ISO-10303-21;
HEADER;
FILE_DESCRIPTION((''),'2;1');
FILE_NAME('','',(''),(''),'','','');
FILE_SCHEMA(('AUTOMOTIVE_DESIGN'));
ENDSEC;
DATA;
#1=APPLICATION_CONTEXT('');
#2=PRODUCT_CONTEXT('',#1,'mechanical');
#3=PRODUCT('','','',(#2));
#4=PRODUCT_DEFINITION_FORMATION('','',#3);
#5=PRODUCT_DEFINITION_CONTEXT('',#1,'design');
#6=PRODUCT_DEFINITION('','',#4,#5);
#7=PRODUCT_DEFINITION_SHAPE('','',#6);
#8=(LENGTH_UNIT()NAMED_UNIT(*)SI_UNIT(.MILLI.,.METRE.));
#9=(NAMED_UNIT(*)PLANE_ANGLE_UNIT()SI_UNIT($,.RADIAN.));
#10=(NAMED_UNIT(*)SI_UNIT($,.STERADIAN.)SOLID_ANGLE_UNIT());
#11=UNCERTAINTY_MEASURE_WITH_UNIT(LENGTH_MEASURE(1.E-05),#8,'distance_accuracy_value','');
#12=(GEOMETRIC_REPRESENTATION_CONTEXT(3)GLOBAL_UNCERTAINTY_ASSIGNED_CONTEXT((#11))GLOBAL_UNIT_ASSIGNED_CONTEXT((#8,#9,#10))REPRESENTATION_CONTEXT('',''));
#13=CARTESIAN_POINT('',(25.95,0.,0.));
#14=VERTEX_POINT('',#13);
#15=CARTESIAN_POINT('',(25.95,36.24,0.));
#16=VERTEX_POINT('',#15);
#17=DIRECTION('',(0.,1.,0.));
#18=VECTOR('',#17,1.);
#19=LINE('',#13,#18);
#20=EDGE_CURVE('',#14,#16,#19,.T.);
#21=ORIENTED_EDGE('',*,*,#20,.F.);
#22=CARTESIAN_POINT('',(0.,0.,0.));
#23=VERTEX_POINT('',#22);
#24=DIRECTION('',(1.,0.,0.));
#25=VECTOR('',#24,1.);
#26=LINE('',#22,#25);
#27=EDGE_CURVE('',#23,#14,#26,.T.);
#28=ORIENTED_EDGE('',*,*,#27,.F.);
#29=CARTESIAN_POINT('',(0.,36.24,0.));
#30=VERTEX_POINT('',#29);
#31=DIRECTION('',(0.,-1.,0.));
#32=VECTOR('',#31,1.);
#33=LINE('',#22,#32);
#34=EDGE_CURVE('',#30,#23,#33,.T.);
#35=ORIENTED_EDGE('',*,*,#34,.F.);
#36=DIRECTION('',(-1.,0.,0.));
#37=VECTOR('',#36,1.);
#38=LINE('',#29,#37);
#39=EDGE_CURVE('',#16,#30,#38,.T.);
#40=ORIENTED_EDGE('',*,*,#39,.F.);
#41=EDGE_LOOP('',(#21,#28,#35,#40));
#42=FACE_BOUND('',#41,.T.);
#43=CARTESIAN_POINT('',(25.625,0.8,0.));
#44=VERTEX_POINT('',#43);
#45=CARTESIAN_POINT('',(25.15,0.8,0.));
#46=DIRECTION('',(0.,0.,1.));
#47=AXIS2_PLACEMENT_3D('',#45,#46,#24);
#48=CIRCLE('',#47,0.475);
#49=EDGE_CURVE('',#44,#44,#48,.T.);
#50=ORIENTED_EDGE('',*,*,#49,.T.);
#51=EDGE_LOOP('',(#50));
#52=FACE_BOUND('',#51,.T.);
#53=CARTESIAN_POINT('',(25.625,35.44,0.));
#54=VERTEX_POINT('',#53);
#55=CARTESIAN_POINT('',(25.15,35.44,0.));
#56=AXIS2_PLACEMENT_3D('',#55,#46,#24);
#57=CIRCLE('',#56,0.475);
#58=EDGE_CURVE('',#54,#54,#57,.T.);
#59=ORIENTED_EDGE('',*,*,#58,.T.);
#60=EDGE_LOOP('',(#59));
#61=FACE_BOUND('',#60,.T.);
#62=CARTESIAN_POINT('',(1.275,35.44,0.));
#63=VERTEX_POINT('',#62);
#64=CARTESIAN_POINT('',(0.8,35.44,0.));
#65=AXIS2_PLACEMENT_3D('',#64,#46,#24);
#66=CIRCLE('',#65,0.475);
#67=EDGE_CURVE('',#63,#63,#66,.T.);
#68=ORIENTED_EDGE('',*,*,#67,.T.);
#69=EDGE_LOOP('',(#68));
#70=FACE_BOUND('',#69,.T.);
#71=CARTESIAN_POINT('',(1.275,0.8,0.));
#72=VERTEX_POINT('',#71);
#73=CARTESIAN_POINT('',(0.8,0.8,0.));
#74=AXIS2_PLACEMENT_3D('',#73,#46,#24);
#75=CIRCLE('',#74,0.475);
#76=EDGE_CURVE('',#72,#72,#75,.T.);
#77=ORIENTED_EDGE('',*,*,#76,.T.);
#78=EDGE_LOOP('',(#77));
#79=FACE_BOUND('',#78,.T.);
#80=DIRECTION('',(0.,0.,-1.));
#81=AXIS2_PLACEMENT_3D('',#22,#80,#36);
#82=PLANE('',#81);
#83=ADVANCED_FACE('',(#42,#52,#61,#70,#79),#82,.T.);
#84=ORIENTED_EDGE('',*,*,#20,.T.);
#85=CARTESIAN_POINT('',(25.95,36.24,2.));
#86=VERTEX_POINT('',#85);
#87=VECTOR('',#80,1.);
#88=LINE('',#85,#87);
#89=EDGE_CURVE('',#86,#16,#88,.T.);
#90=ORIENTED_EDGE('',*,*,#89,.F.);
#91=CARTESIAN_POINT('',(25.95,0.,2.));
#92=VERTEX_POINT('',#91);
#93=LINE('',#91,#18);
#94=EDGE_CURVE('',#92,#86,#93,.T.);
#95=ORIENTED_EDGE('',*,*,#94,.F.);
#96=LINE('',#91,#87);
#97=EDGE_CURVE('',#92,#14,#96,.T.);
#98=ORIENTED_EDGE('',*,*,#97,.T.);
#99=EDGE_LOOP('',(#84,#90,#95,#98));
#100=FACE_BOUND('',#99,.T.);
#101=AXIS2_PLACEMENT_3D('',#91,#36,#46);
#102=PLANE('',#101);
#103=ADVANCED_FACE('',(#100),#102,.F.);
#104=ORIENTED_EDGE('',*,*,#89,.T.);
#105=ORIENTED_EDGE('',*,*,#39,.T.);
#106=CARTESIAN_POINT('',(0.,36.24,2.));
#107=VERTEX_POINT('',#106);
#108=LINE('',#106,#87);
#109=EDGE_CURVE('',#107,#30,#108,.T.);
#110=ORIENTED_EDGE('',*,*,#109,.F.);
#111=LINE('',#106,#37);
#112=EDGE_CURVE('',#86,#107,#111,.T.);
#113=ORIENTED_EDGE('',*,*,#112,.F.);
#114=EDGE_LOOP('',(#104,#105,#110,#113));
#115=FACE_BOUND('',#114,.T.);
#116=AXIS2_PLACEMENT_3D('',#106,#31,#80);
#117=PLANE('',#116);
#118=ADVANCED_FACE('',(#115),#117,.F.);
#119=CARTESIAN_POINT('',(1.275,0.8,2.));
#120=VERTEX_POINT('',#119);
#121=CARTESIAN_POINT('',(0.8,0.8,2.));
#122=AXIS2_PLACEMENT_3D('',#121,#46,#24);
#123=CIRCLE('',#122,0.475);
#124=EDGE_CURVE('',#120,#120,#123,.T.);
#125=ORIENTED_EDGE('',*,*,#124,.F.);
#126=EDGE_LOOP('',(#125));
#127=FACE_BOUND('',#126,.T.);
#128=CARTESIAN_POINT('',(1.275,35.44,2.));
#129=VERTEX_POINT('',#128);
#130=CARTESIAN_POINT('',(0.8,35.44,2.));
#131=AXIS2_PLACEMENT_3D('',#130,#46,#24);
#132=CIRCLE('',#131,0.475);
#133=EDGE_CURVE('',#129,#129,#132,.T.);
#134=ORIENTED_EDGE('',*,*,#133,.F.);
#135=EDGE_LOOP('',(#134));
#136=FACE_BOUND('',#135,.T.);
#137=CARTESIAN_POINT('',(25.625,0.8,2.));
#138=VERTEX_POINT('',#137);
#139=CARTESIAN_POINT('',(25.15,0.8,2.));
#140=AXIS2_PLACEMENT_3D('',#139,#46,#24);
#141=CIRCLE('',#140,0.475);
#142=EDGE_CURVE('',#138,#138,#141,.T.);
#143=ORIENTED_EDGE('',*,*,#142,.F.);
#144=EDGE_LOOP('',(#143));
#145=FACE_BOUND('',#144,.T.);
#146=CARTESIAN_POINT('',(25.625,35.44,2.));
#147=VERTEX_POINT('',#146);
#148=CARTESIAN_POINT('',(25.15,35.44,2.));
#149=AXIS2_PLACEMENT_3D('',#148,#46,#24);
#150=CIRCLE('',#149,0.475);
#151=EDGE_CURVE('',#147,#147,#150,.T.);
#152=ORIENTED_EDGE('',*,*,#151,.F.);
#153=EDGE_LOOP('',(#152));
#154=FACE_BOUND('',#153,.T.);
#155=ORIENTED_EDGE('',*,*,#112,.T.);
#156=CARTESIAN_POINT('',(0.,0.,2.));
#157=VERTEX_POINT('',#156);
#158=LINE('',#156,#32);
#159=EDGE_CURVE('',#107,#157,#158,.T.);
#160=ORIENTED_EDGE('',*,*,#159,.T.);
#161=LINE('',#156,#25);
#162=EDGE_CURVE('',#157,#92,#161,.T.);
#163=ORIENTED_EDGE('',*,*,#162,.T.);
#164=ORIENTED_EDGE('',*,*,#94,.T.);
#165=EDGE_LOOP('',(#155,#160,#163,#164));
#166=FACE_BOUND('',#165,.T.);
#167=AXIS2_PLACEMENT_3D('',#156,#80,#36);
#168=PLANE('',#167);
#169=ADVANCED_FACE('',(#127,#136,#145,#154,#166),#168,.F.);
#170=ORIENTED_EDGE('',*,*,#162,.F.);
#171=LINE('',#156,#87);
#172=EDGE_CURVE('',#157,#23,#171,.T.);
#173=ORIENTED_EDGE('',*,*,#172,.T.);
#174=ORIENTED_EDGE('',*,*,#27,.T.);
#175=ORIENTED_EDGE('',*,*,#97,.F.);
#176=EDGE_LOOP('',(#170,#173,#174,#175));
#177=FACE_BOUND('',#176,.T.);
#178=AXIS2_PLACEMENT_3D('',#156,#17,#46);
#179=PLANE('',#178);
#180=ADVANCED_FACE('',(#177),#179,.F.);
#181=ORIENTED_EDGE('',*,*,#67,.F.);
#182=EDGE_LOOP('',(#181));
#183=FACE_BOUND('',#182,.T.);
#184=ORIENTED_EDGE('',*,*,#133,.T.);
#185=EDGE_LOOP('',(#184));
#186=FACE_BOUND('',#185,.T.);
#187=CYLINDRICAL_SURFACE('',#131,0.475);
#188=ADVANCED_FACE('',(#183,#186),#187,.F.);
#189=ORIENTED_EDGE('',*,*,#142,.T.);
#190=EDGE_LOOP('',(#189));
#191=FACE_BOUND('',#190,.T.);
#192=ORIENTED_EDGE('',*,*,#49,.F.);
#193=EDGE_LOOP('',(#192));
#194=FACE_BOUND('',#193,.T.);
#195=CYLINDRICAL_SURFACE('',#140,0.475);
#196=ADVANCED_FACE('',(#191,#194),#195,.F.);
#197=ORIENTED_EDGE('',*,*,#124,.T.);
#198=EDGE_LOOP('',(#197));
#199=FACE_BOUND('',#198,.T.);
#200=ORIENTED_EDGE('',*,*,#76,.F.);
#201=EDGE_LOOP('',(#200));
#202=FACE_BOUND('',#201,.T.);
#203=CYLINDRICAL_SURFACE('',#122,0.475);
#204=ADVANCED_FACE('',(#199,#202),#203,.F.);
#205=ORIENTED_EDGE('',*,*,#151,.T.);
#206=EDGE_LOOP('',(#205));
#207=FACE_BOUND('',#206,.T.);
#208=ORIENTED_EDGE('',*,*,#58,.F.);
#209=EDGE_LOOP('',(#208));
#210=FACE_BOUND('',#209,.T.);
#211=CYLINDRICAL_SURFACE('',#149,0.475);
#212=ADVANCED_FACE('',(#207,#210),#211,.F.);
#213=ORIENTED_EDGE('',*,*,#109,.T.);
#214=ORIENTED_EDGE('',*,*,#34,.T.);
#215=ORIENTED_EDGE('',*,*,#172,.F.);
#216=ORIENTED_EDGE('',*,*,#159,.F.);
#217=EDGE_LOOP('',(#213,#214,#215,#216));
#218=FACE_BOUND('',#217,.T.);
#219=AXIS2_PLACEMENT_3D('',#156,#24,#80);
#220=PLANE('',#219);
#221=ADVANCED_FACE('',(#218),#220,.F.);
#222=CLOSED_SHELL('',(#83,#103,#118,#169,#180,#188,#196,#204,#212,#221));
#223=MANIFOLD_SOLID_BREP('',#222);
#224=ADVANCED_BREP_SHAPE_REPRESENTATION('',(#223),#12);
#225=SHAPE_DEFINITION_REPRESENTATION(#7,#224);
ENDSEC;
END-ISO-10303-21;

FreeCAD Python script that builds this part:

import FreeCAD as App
import Part
import Sketcher
from FreeCAD import Vector


def add_polygon(sketch, points):
    """Adds a closed chain of lines whose ends are joined by coincident constraints."""
    first, n = sketch.GeometryCount, len(points)
    for a, b in zip(points, points[1:] + points[:1]):
        sketch.addGeometry(Part.LineSegment(App.Vector(*a, 0), App.Vector(*b, 0)), False)
    for i in range(n):
        sketch.addConstraint(Sketcher.Constraint("Coincident", first + i, 2, first + (i + 1) % n, 1))

doc = App.newDocument("Part")
body = doc.addObject("PartDesign::Body", "Body")

# Sketch on XY plane
sketch1 = body.newObject("Sketcher::SketchObject", "Sketch")
sketch1.AttachmentSupport = (doc.getObject("XY_Plane"), [""])
sketch1.MapMode = "FlatFace"
add_polygon(sketch1, [(0, 36.24), (0, 0), (25.95, 0), (25.95, 36.24)])  # lines 0-3
sketch1.addConstraint(Sketcher.Constraint("Vertical", 0))
sketch1.addConstraint(Sketcher.Constraint("Horizontal", 1))
sketch1.addConstraint(Sketcher.Constraint("Vertical", 2))
sketch1.addConstraint(Sketcher.Constraint("Horizontal", 3))
sketch1.addConstraint(Sketcher.Constraint("Coincident", 0, 2, -1, 1))
sketch1.addConstraint(Sketcher.Constraint("DistanceX", 1, 1, 1, 2, 25.95))
sketch1.addConstraint(Sketcher.Constraint("DistanceY", 0, 2, 0, 1, 36.24))
pad1 = body.newObject("PartDesign::Pad", "Pad")
pad1.Profile = sketch1
pad1.Length = 2

# Sketch on XY plane
sketch2 = body.newObject("Sketcher::SketchObject", "Sketch001")
sketch2.AttachmentSupport = (doc.getObject("XY_Plane"), [""])
sketch2.MapMode = "FlatFace"
sketch2.AttachmentOffset = App.Placement(Vector(0, 0, 2), App.Rotation())
sketch2.addGeometry(Part.Circle(Vector(0.8, 0.8, 0), Vector(0, 0, 1), 0.475), False)
sketch2.addGeometry(Part.Circle(Vector(25.15, 0.8, 0), Vector(0, 0, 1), 0.475), False)
sketch2.addGeometry(Part.Circle(Vector(25.15, 35.44, 0), Vector(0, 0, 1), 0.475), False)
sketch2.addGeometry(Part.Circle(Vector(0.8, 35.44, 0), Vector(0, 0, 1), 0.475), False)
sketch2.addConstraint(Sketcher.Constraint("Equal", 0, 1))
sketch2.addConstraint(Sketcher.Constraint("Equal", 1, 2))
sketch2.addConstraint(Sketcher.Constraint("Equal", 2, 3))
sketch2.addConstraint(Sketcher.Constraint("Horizontal", 0, 3, 1, 3))
sketch2.addConstraint(Sketcher.Constraint("Horizontal", 2, 3, 3, 3))
sketch2.addConstraint(Sketcher.Constraint("Vertical", 1, 3, 2, 3))
sketch2.addConstraint(Sketcher.Constraint("Vertical", 0, 3, 3, 3))
sketch2.addConstraint(Sketcher.Constraint("Diameter", 0, 0.95))
sketch2.addConstraint(Sketcher.Constraint("DistanceX", -1, 1, 0, 3, 0.8))
sketch2.addConstraint(Sketcher.Constraint("DistanceY", -1, 1, 0, 3, 0.8))
sketch2.addConstraint(Sketcher.Constraint("DistanceX", -1, 1, 1, 3, 25.15))
sketch2.addConstraint(Sketcher.Constraint("DistanceY", -1, 1, 2, 3, 35.44))
doc.recompute()
hole = body.newObject("PartDesign::Hole", "Hole")
hole.Profile = sketch2
hole.ThreadType = "None"
hole.Diameter = 0.95
hole.DepthType = "ThroughAll"

doc.recompute()
